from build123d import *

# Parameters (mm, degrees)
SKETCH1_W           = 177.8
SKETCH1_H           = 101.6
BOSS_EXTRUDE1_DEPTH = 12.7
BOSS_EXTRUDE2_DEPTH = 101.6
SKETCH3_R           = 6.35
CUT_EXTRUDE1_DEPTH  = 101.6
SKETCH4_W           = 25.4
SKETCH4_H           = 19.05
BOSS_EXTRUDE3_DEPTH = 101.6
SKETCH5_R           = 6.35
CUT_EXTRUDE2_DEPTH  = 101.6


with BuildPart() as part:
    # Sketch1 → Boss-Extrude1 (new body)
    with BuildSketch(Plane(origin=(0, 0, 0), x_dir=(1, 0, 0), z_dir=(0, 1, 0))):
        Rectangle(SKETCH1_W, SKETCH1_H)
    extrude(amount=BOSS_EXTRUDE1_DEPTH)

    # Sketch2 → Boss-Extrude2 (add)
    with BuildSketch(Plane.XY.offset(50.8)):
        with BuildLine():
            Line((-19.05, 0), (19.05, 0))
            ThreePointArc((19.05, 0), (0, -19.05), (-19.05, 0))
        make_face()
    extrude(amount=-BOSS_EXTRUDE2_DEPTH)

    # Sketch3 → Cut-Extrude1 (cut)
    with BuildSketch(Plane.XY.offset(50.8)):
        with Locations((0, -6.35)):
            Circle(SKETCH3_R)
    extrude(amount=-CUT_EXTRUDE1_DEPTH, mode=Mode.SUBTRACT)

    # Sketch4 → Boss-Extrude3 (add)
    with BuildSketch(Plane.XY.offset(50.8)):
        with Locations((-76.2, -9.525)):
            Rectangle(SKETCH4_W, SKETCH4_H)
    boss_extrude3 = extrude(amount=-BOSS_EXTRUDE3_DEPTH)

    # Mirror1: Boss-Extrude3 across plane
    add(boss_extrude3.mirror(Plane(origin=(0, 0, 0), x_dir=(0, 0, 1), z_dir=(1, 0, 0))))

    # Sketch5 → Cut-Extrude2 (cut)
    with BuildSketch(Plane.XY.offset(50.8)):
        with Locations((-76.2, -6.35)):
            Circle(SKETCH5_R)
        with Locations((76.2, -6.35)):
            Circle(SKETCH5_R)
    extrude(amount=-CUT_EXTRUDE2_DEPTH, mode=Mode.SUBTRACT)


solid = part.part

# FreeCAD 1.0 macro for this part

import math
import FreeCAD as App
import Part
import Sketcher
from FreeCAD import Vector
Q = App.Units.Quantity


def add_polygon(sketch, points):
    """Adds a closed chain of lines whose ends are joined by coincident constraints."""
    first, n = sketch.GeometryCount, len(points)
    for a, b in zip(points, points[1:] + points[:1]):
        sketch.addGeometry(Part.LineSegment(App.Vector(*a, 0), App.Vector(*b, 0)), False)
    for i in range(n):
        sketch.addConstraint(Sketcher.Constraint("Coincident", first + i, 2, first + (i + 1) % n, 1))

doc = App.newDocument("Part")
params = doc.addObject("Spreadsheet::Sheet", "Params")
for row, (alias, value) in enumerate([
    ("sketch1_width", "7 in"),
    ("sketch1_height", "4 in"),
    ("pad1_length", "0.5 in"),
    ("sketch2_radius", "0.75 in"),
    ("pad2_length", "4 in"),
    ("sketch3_diameter", "0.5 in"),
    ("pocket1_length", "4 in"),
    ("sketch4_width", "1 in"),
    ("sketch4_height", "0.75 in"),
    ("pad3_length", "4 in"),
    ("sketch5_diameter", "0.5 in"),
    ("pocket2_length", "4 in"),
], start=1):
    params.set(f"A{row}", alias)
    params.set(f"B{row}", "=" + value)
    params.setAlias(f"B{row}", alias)

body = doc.addObject("PartDesign::Body", "Body")

# Sketch on XZ plane
sketch1 = body.newObject("Sketcher::SketchObject", "Sketch")
sketch1.AttachmentSupport = (doc.getObject("XZ_Plane"), [""])
sketch1.MapMode = "FlatFace"
add_polygon(sketch1, [(-88.9, -50.8), (-88.9, 50.8), (88.9, 50.8), (88.9, -50.8)])  # lines 0-3
sketch1.addConstraint([
    Sketcher.Constraint("Vertical", 0),
    Sketcher.Constraint("Horizontal", 1),
    Sketcher.Constraint("Vertical", 2),
    Sketcher.Constraint("Horizontal", 3),
    Sketcher.Constraint("Symmetric", 0, 2, 2, 2, -1, 1),
    Sketcher.Constraint("DistanceX", 1, 1, 1, 2, Q("7 in")),
    Sketcher.Constraint("DistanceY", 0, 1, 0, 2, Q("4 in")),
])
sketch1.setExpression("Constraints[9]", "Params.sketch1_width")
sketch1.setExpression("Constraints[10]", "Params.sketch1_height")
pad1 = body.newObject("PartDesign::Pad", "Pad")
pad1.Profile = sketch1
pad1.setExpression("Length", "Params.pad1_length")
pad1.Reversed = True

# Sketch on XY plane
sketch2 = body.newObject("Sketcher::SketchObject", "Sketch001")
sketch2.AttachmentSupport = (doc.getObject("XY_Plane"), [""])
sketch2.MapMode = "FlatFace"
sketch2.AttachmentOffset = App.Placement(Vector(0, 0, 2 * 25.4), App.Rotation())
sketch2.addGeometry([
    Part.LineSegment(Vector(19.05, 0, 0), Vector(-19.05, 0, 0)),
    Part.ArcOfCircle(Part.Circle(Vector(0, 0, 0), Vector(0, 0, 1), 19.05), math.radians(180), math.radians(360)),
], False)
sketch2.addConstraint([
    Sketcher.Constraint("Coincident", 0, 1, 1, 2),
    Sketcher.Constraint("Coincident", 1, 1, 0, 2),
    Sketcher.Constraint("Horizontal", 0),
    Sketcher.Constraint("Coincident", 1, 3, -1, 1),
    Sketcher.Constraint("PointOnObject", 0, 1, -1),
    Sketcher.Constraint("Radius", 1, Q("0.75 in")),
])
sketch2.setExpression("Constraints[5]", "Params.sketch2_radius")
pad2 = body.newObject("PartDesign::Pad", "Pad001")
pad2.Profile = sketch2
pad2.setExpression("Length", "Params.pad2_length")
pad2.Reversed = True

# Sketch on XY plane
sketch3 = body.newObject("Sketcher::SketchObject", "Sketch002")
sketch3.AttachmentSupport = (doc.getObject("XY_Plane"), [""])
sketch3.MapMode = "FlatFace"
sketch3.AttachmentOffset = App.Placement(Vector(0, 0, 2 * 25.4), App.Rotation())
sketch3.addGeometry(Part.Circle(Vector(0, -6.35, 0), Vector(0, 0, 1), 6.35), False)
sketch3.addConstraint([
    Sketcher.Constraint("PointOnObject", 0, 3, -2),
    Sketcher.Constraint("Diameter", 0, Q("0.5 in")),
    Sketcher.Constraint("DistanceY", 0, 3, -1, 1, Q("0.25 in")),
])
sketch3.setExpression("Constraints[1]", "Params.sketch3_diameter")
pocket1 = body.newObject("PartDesign::Pocket", "Pocket")
pocket1.Profile = sketch3
pocket1.setExpression("Length", "Params.pocket1_length")

# Sketch on XY plane
sketch4 = body.newObject("Sketcher::SketchObject", "Sketch003")
sketch4.AttachmentSupport = (doc.getObject("XY_Plane"), [""])
sketch4.MapMode = "FlatFace"
sketch4.AttachmentOffset = App.Placement(Vector(0, 0, 2 * 25.4), App.Rotation())
add_polygon(sketch4, [(-88.9, 0), (-88.9, -19.05), (-63.5, -19.05), (-63.5, 0)])  # lines 0-3
sketch4.addConstraint([
    Sketcher.Constraint("Vertical", 0),
    Sketcher.Constraint("Horizontal", 1),
    Sketcher.Constraint("Vertical", 2),
    Sketcher.Constraint("Horizontal", 3),
    Sketcher.Constraint("PointOnObject", 2, 2, -1),
    Sketcher.Constraint("DistanceX", 1, 1, 1, 2, Q("1 in")),
    Sketcher.Constraint("DistanceY", 0, 2, 0, 1, Q("0.75 in")),
    Sketcher.Constraint("DistanceX", 0, 2, -1, 1, Q("3.5 in")),
])
sketch4.setExpression("Constraints[9]", "Params.sketch4_width")
sketch4.setExpression("Constraints[10]", "Params.sketch4_height")
pad3 = body.newObject("PartDesign::Pad", "Pad002")
pad3.Profile = sketch4
pad3.setExpression("Length", "Params.pad3_length")
pad3.Reversed = True
doc.recompute()

mirrored = body.newObject("PartDesign::Mirrored", "Mirrored")
mirrored.Originals = [pad3]
mirrored.MirrorPlane = (doc.getObject("YZ_Plane"), [""])
body.Tip = mirrored

# Sketch on XY plane
sketch5 = body.newObject("Sketcher::SketchObject", "Sketch004")
sketch5.AttachmentSupport = (doc.getObject("XY_Plane"), [""])
sketch5.MapMode = "FlatFace"
sketch5.AttachmentOffset = App.Placement(Vector(0, 0, 2 * 25.4), App.Rotation())
sketch5.addGeometry([
    Part.Circle(Vector(-76.2, -6.35, 0), Vector(0, 0, 1), 6.35),
    Part.Circle(Vector(76.2, -6.35, 0), Vector(0, 0, 1), 6.35),
], False)
sketch5.addConstraint([
    Sketcher.Constraint("Equal", 0, 1),
    Sketcher.Constraint("Symmetric", 0, 3, 1, 3, -2),
    Sketcher.Constraint("Diameter", 0, Q("0.5 in")),
    Sketcher.Constraint("DistanceX", 0, 3, -1, 1, Q("3 in")),
    Sketcher.Constraint("DistanceY", 0, 3, -1, 1, Q("0.25 in")),
])
sketch5.setExpression("Constraints[2]", "Params.sketch5_diameter")
pocket2 = body.newObject("PartDesign::Pocket", "Pocket001")
pocket2.Profile = sketch5
pocket2.setExpression("Length", "Params.pocket2_length")

doc.recompute()
